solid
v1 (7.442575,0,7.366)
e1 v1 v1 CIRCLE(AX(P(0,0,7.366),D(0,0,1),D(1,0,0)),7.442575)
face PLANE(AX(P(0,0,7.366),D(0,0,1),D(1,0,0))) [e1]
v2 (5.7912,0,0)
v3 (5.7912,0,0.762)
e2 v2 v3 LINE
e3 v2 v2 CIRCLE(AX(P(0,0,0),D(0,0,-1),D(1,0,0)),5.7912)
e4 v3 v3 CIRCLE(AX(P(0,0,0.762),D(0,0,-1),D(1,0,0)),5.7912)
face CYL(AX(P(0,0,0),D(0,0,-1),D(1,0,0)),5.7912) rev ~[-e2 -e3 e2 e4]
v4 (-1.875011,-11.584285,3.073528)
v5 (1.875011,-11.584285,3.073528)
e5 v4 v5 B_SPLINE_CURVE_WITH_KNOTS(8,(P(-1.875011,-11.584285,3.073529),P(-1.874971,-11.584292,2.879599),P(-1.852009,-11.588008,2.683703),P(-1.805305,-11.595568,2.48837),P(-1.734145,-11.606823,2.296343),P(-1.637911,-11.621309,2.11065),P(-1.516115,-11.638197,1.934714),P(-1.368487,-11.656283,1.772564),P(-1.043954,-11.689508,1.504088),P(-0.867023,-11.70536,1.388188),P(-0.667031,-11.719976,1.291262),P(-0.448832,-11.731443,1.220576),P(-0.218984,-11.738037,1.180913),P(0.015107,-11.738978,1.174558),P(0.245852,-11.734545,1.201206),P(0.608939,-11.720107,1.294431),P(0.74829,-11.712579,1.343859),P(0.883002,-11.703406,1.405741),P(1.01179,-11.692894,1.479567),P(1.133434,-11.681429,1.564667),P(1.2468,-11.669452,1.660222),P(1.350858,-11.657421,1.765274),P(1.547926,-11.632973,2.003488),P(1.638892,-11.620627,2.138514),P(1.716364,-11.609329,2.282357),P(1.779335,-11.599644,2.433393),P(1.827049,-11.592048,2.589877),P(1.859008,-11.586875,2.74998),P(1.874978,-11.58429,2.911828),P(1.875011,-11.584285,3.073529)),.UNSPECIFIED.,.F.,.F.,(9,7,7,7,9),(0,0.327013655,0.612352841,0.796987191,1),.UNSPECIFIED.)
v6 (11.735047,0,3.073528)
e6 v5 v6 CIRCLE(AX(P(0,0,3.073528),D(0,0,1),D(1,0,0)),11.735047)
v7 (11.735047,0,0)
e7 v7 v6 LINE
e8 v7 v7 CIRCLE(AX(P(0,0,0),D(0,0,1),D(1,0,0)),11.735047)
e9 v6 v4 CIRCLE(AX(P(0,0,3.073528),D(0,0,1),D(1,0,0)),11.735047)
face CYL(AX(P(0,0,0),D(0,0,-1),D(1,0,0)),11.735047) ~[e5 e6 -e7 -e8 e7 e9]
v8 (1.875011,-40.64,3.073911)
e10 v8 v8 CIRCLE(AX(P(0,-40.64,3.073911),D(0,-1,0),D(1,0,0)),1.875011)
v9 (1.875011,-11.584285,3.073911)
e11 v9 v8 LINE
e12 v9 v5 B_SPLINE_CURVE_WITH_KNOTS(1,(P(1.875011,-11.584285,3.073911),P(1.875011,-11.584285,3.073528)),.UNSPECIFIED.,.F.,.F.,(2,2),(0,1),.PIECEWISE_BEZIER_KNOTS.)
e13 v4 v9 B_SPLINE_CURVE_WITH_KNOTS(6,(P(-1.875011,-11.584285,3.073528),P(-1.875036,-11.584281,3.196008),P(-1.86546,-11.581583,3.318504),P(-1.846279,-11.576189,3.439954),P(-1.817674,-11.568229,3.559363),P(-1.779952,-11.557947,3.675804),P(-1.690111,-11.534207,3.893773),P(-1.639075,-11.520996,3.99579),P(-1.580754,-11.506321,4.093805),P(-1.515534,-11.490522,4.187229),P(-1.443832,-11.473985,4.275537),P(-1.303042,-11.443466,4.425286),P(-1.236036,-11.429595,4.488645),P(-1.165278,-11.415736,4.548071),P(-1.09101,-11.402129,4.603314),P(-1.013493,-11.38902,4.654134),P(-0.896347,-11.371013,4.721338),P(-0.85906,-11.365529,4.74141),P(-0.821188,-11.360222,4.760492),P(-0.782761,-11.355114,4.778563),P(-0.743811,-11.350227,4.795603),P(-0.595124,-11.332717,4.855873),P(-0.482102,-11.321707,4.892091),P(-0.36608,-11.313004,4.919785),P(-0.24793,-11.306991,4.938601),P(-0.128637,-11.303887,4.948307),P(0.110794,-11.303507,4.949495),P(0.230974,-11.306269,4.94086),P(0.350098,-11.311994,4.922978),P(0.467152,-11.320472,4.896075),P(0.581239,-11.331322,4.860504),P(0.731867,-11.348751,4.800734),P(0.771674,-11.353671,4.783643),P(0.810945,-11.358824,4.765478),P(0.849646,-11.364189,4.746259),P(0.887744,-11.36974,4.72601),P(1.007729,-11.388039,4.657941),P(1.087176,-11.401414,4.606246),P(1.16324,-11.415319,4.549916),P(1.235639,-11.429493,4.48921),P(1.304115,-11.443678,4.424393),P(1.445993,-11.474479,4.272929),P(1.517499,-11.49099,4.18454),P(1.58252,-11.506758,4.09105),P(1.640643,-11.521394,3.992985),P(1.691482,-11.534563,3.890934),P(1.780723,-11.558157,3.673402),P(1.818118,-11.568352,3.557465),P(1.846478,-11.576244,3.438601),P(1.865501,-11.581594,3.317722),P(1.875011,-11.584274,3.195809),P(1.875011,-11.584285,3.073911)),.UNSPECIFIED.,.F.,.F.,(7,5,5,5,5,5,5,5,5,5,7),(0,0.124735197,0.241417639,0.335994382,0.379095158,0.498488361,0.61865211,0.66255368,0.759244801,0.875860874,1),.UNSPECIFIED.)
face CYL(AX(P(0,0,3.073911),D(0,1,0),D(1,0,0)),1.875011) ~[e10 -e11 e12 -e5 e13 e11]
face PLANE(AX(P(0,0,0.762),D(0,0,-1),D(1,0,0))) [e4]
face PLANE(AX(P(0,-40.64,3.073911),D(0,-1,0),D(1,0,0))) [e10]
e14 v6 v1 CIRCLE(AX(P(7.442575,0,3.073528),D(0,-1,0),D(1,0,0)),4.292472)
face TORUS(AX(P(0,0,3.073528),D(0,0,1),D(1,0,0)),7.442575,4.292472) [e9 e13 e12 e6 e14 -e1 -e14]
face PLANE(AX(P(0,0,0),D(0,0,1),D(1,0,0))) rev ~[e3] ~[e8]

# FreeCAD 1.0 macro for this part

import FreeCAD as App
import Part
import Sketcher

V = App.Vector
Q = App.Units.Quantity


def edges_at(feature, points):
    """Names of the edges that pass closest to the given points."""
    edges = feature.Shape.Edges
    near = lambda p: min(range(len(edges)), key=lambda i: edges[i].distToShape(Part.Vertex(*p))[0])
    return sorted({f"Edge{near(p) + 1}" for p in points})

doc = App.newDocument("Part")
body = doc.addObject("PartDesign::Body", "Body")

sketch1 = doc.addObject("Sketcher::SketchObject", "Sketch")
body.addObject(sketch1)
sketch1.AttachmentSupport = (doc.XY_Plane, [""])
sketch1.MapMode = "FlatFace"
sketch1.addGeometry(Part.Circle(V(0, 0, 0), V(0, 0, 1), 11.735047), False)
sketch1.addConstraint(Sketcher.Constraint("Coincident", 0, 3, -1, 1))
sketch1.addConstraint(Sketcher.Constraint("Diameter", 0, 23.470094))
pad1 = doc.addObject("PartDesign::Pad", "Pad")
body.addObject(pad1)
pad1.Profile = sketch1
pad1.Length = Q("0.29 in")
doc.recompute()

fillet = doc.addObject("PartDesign::Fillet", "Fillet")
body.addObject(fillet)
fillet.Base = (pad1, edges_at(pad1, [(-11.735, 0, 7.366)]))
fillet.Radius = 4.292472

sketch2 = doc.addObject("Sketcher::SketchObject", "Sketch001")
body.addObject(sketch2)
sketch2.AttachmentSupport = (doc.XY_Plane, [""])
sketch2.MapMode = "FlatFace"
sketch2.addGeometry(Part.Circle(V(0, 0, 0), V(0, 0, 1), 5.7912), False)
sketch2.addConstraint(Sketcher.Constraint("Coincident", 0, 3, -1, 1))
sketch2.addConstraint(Sketcher.Constraint("Diameter", 0, Q("0.456 in")))
pocket1 = doc.addObject("PartDesign::Pocket", "Pocket")
body.addObject(pocket1)
pocket1.Profile = sketch2
pocket1.Length = Q("0.03 in")
pocket1.Reversed = True

sketch3 = doc.addObject("Sketcher::SketchObject", "Sketch002")
body.addObject(sketch3)
sketch3.AttachmentSupport = (doc.XZ_Plane, [""])
sketch3.MapMode = "FlatFace"
sketch3.addGeometry(Part.Circle(V(0, 3.073911, 0), V(0, 0, 1), 1.875011), False)
sketch3.addConstraint(Sketcher.Constraint("PointOnObject", 0, 3, -2))
sketch3.addConstraint(Sketcher.Constraint("Diameter", 0, 3.750022))
sketch3.addConstraint(Sketcher.Constraint("DistanceY", -1, 1, 0, 3, 3.073911))
pad2 = doc.addObject("PartDesign::Pad", "Pad001")
body.addObject(pad2)
pad2.Profile = sketch3
pad2.Length = Q("1.6 in")

doc.recompute()
